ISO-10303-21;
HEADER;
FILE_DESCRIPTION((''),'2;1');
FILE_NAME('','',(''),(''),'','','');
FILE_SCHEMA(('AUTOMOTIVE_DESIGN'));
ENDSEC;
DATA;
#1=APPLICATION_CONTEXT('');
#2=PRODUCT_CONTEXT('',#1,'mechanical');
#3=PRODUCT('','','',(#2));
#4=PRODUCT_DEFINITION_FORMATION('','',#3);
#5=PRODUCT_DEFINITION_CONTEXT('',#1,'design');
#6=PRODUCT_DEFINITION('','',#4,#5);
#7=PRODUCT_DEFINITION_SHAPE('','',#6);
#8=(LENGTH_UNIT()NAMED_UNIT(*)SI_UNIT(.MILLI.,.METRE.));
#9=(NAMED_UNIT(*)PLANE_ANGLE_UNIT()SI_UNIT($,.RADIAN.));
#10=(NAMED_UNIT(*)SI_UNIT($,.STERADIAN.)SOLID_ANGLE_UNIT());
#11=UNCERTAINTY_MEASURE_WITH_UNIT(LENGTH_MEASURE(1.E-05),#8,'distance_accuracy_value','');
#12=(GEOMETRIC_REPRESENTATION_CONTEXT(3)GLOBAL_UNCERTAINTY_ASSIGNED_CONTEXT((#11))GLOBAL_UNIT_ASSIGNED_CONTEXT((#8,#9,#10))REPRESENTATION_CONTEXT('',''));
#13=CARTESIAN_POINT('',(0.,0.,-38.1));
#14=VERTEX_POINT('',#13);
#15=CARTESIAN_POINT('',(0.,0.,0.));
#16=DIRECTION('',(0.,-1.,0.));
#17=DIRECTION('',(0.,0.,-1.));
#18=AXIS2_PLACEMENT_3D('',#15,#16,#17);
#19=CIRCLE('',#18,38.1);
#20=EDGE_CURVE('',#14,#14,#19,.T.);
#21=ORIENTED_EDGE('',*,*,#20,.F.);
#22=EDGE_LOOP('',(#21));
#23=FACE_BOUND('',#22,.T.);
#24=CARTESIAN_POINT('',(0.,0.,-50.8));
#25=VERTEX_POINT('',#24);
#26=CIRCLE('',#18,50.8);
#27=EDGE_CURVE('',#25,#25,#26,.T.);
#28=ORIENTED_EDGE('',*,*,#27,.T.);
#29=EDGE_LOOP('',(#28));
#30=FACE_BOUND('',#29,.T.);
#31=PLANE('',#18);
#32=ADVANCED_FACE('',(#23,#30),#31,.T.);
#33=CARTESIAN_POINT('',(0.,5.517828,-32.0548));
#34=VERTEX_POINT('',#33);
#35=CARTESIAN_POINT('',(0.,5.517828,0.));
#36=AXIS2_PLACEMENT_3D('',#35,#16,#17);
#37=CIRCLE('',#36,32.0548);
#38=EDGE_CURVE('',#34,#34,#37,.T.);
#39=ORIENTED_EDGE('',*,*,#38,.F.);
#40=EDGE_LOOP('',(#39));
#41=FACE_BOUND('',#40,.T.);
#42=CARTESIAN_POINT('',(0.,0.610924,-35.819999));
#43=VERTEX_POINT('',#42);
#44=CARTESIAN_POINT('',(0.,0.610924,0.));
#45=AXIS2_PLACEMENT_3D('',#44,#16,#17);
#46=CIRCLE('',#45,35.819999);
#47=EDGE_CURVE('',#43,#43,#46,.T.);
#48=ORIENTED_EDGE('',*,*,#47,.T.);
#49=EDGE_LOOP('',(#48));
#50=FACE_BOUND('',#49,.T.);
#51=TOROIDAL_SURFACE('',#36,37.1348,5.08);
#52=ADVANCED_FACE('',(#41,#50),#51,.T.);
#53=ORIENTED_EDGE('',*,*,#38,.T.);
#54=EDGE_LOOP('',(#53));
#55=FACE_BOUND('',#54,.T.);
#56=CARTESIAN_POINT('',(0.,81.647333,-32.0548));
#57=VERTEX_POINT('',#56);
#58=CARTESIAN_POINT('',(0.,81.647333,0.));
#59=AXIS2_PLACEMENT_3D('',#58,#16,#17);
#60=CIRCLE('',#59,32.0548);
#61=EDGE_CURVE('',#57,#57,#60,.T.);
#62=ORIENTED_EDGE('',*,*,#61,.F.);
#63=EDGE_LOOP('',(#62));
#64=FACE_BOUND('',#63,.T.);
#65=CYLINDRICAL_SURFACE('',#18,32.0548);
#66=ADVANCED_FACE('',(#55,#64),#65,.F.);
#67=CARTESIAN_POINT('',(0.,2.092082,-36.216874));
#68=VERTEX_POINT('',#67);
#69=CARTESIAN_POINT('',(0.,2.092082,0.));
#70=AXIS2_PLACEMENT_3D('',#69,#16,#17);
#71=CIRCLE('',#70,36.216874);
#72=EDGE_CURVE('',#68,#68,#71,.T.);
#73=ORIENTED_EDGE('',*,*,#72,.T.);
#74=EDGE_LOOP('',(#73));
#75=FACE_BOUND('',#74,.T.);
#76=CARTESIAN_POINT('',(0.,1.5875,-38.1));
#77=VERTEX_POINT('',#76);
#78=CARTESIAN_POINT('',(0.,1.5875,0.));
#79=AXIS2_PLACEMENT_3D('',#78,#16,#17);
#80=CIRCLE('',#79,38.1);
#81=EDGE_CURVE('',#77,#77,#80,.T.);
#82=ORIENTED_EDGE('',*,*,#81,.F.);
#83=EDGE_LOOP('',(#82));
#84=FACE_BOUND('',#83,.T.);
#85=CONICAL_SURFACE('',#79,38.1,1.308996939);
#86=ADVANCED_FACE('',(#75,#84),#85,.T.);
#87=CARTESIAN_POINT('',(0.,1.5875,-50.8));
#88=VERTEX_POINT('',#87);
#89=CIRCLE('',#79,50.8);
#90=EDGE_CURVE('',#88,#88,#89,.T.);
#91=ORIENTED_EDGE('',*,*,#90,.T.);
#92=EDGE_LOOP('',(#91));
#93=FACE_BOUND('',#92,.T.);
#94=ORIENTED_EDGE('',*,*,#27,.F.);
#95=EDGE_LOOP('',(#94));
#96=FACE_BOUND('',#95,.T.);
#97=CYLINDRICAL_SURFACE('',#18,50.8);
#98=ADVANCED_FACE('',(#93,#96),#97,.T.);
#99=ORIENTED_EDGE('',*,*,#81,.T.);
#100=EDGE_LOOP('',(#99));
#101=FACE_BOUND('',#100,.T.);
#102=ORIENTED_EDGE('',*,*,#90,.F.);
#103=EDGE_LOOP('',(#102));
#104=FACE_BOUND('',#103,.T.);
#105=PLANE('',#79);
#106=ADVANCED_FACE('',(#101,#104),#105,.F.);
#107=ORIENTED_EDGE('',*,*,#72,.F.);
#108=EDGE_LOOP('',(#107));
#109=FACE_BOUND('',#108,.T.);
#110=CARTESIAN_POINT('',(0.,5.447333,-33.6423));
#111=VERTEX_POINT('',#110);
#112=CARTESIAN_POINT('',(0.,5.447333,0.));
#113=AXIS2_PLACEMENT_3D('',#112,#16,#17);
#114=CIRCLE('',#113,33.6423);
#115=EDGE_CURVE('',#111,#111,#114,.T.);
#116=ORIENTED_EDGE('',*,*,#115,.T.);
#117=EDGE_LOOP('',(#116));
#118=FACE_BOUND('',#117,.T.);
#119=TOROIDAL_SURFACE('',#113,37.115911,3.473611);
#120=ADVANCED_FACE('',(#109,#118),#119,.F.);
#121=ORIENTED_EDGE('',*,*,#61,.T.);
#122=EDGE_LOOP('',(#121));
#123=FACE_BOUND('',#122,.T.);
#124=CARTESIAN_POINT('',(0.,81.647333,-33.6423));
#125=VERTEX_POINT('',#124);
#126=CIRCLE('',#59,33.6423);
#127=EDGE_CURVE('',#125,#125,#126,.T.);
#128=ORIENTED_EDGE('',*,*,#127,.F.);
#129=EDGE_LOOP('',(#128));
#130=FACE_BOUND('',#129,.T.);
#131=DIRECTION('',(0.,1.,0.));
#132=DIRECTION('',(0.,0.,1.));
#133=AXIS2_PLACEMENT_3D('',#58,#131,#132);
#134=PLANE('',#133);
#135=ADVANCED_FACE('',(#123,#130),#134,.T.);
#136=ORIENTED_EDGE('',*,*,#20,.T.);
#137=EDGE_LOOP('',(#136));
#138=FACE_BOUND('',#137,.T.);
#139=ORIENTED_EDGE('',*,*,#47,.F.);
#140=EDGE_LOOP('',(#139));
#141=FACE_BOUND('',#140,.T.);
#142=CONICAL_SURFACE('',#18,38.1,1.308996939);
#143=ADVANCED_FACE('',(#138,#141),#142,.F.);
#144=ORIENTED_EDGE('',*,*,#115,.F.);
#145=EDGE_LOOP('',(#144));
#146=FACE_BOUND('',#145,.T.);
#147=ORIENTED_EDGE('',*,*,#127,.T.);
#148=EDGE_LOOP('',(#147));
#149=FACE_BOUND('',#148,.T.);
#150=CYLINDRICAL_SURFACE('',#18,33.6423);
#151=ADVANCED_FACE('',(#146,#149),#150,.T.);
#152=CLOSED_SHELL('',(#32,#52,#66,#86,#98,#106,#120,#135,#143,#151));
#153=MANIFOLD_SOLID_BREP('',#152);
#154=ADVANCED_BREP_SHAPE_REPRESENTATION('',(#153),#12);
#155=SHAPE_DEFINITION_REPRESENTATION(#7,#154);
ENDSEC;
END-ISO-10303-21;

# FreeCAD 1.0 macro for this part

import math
import FreeCAD as App
import Part
import Sketcher

V = App.Vector
Q = App.Units.Quantity

doc = App.newDocument("Part")
body = doc.addObject("PartDesign::Body", "Body")

# Sketch on XY plane
sketch1 = doc.addObject("Sketcher::SketchObject", "Sketch")
body.addObject(sketch1)
sketch1.AttachmentSupport = (doc.XY_Plane, [""])
sketch1.MapMode = "FlatFace"
sketch1.addGeometry([
    Part.LineSegment(V(38.1, 0, 0), V(50.8, 0, 0)),  # 0
    Part.LineSegment(V(50.8, 0, 0), V(50.8, 1.6, 0)),  # 1
    Part.LineSegment(V(50.8, 1.6, 0), V(38.1, 1.6, 0)),  # 2
    Part.LineSegment(V(38.1, 1.6, 0), V(36.2, 2.1, 0)),  # 3
    Part.ArcOfCircle(Part.Circle(V(37.1, 5.4, 0), V(0, 0, 1), 3.5), math.radians(-180), math.radians(-105)),  # 4
    Part.LineSegment(V(33.6, 5.4, 0), V(33.6, 81.6, 0)),  # 5
    Part.LineSegment(V(33.6, 81.6, 0), V(32.1, 81.6, 0)),  # 6
    Part.LineSegment(V(32.1, 81.6, 0), V(32.1, 5.5, 0)),  # 7
    Part.ArcOfCircle(Part.Circle(V(37.1, 5.5, 0), V(0, 0, 1), 5.1), math.radians(180), math.radians(255)),  # 8
    Part.LineSegment(V(35.8, 0.6, 0), V(38.1, 0, 0)),  # 9
], False)
sketch1.addConstraint([
    Sketcher.Constraint("Coincident", 0, 2, 1, 1),
    Sketcher.Constraint("Coincident", 1, 2, 2, 1),
    Sketcher.Constraint("Coincident", 2, 2, 3, 1),
    Sketcher.Constraint("Tangent", 3, 2, 4, 2),
    Sketcher.Constraint("Tangent", 4, 1, 5, 1),
    Sketcher.Constraint("Coincident", 5, 2, 6, 1),
    Sketcher.Constraint("Coincident", 6, 2, 7, 1),
    Sketcher.Constraint("Tangent", 7, 2, 8, 1),
    Sketcher.Constraint("Tangent", 8, 2, 9, 1),
    Sketcher.Constraint("Coincident", 9, 2, 0, 1),
    Sketcher.Constraint("Horizontal", 0),
    Sketcher.Constraint("Vertical", 1),
    Sketcher.Constraint("Horizontal", 2),
    Sketcher.Constraint("Vertical", 5),
    Sketcher.Constraint("Horizontal", 6),
    Sketcher.Constraint("Vertical", 7),
    Sketcher.Constraint("PointOnObject", 0, 2, -1),
    Sketcher.Constraint("Parallel", 3, 9),
    Sketcher.Constraint("Vertical", 2, 2, 9, 2),
    Sketcher.Constraint("Equal", 6, 1),
    Sketcher.Constraint("Radius", 8, Q("0.2 in")),
    Sketcher.Constraint("DistanceY", 5, 1, 5, 2, Q("3 in")),
    Sketcher.Constraint("DistanceX", 0, 1, 0, 2, Q("0.5 in")),
    Sketcher.Constraint("DistanceX", -1, 1, 0, 2, Q("2 in")),
    Sketcher.Constraint("Angle", 3, Q("165 deg")),
    Sketcher.Constraint("DistanceX", 6, 2, 6, 1, Q("0.0625 in")),
    Sketcher.Constraint("DistanceX", -1, 1, 8, 3, Q("1.462 in")),
    Sketcher.Constraint("Radius", 4, 3.473611),
])
revolution = doc.addObject("PartDesign::Revolution", "Revolution")
body.addObject(revolution)
revolution.Profile = sketch1
revolution.ReferenceAxis = (sketch1, ["V_Axis"])
revolution.Angle = 360

doc.recompute()
